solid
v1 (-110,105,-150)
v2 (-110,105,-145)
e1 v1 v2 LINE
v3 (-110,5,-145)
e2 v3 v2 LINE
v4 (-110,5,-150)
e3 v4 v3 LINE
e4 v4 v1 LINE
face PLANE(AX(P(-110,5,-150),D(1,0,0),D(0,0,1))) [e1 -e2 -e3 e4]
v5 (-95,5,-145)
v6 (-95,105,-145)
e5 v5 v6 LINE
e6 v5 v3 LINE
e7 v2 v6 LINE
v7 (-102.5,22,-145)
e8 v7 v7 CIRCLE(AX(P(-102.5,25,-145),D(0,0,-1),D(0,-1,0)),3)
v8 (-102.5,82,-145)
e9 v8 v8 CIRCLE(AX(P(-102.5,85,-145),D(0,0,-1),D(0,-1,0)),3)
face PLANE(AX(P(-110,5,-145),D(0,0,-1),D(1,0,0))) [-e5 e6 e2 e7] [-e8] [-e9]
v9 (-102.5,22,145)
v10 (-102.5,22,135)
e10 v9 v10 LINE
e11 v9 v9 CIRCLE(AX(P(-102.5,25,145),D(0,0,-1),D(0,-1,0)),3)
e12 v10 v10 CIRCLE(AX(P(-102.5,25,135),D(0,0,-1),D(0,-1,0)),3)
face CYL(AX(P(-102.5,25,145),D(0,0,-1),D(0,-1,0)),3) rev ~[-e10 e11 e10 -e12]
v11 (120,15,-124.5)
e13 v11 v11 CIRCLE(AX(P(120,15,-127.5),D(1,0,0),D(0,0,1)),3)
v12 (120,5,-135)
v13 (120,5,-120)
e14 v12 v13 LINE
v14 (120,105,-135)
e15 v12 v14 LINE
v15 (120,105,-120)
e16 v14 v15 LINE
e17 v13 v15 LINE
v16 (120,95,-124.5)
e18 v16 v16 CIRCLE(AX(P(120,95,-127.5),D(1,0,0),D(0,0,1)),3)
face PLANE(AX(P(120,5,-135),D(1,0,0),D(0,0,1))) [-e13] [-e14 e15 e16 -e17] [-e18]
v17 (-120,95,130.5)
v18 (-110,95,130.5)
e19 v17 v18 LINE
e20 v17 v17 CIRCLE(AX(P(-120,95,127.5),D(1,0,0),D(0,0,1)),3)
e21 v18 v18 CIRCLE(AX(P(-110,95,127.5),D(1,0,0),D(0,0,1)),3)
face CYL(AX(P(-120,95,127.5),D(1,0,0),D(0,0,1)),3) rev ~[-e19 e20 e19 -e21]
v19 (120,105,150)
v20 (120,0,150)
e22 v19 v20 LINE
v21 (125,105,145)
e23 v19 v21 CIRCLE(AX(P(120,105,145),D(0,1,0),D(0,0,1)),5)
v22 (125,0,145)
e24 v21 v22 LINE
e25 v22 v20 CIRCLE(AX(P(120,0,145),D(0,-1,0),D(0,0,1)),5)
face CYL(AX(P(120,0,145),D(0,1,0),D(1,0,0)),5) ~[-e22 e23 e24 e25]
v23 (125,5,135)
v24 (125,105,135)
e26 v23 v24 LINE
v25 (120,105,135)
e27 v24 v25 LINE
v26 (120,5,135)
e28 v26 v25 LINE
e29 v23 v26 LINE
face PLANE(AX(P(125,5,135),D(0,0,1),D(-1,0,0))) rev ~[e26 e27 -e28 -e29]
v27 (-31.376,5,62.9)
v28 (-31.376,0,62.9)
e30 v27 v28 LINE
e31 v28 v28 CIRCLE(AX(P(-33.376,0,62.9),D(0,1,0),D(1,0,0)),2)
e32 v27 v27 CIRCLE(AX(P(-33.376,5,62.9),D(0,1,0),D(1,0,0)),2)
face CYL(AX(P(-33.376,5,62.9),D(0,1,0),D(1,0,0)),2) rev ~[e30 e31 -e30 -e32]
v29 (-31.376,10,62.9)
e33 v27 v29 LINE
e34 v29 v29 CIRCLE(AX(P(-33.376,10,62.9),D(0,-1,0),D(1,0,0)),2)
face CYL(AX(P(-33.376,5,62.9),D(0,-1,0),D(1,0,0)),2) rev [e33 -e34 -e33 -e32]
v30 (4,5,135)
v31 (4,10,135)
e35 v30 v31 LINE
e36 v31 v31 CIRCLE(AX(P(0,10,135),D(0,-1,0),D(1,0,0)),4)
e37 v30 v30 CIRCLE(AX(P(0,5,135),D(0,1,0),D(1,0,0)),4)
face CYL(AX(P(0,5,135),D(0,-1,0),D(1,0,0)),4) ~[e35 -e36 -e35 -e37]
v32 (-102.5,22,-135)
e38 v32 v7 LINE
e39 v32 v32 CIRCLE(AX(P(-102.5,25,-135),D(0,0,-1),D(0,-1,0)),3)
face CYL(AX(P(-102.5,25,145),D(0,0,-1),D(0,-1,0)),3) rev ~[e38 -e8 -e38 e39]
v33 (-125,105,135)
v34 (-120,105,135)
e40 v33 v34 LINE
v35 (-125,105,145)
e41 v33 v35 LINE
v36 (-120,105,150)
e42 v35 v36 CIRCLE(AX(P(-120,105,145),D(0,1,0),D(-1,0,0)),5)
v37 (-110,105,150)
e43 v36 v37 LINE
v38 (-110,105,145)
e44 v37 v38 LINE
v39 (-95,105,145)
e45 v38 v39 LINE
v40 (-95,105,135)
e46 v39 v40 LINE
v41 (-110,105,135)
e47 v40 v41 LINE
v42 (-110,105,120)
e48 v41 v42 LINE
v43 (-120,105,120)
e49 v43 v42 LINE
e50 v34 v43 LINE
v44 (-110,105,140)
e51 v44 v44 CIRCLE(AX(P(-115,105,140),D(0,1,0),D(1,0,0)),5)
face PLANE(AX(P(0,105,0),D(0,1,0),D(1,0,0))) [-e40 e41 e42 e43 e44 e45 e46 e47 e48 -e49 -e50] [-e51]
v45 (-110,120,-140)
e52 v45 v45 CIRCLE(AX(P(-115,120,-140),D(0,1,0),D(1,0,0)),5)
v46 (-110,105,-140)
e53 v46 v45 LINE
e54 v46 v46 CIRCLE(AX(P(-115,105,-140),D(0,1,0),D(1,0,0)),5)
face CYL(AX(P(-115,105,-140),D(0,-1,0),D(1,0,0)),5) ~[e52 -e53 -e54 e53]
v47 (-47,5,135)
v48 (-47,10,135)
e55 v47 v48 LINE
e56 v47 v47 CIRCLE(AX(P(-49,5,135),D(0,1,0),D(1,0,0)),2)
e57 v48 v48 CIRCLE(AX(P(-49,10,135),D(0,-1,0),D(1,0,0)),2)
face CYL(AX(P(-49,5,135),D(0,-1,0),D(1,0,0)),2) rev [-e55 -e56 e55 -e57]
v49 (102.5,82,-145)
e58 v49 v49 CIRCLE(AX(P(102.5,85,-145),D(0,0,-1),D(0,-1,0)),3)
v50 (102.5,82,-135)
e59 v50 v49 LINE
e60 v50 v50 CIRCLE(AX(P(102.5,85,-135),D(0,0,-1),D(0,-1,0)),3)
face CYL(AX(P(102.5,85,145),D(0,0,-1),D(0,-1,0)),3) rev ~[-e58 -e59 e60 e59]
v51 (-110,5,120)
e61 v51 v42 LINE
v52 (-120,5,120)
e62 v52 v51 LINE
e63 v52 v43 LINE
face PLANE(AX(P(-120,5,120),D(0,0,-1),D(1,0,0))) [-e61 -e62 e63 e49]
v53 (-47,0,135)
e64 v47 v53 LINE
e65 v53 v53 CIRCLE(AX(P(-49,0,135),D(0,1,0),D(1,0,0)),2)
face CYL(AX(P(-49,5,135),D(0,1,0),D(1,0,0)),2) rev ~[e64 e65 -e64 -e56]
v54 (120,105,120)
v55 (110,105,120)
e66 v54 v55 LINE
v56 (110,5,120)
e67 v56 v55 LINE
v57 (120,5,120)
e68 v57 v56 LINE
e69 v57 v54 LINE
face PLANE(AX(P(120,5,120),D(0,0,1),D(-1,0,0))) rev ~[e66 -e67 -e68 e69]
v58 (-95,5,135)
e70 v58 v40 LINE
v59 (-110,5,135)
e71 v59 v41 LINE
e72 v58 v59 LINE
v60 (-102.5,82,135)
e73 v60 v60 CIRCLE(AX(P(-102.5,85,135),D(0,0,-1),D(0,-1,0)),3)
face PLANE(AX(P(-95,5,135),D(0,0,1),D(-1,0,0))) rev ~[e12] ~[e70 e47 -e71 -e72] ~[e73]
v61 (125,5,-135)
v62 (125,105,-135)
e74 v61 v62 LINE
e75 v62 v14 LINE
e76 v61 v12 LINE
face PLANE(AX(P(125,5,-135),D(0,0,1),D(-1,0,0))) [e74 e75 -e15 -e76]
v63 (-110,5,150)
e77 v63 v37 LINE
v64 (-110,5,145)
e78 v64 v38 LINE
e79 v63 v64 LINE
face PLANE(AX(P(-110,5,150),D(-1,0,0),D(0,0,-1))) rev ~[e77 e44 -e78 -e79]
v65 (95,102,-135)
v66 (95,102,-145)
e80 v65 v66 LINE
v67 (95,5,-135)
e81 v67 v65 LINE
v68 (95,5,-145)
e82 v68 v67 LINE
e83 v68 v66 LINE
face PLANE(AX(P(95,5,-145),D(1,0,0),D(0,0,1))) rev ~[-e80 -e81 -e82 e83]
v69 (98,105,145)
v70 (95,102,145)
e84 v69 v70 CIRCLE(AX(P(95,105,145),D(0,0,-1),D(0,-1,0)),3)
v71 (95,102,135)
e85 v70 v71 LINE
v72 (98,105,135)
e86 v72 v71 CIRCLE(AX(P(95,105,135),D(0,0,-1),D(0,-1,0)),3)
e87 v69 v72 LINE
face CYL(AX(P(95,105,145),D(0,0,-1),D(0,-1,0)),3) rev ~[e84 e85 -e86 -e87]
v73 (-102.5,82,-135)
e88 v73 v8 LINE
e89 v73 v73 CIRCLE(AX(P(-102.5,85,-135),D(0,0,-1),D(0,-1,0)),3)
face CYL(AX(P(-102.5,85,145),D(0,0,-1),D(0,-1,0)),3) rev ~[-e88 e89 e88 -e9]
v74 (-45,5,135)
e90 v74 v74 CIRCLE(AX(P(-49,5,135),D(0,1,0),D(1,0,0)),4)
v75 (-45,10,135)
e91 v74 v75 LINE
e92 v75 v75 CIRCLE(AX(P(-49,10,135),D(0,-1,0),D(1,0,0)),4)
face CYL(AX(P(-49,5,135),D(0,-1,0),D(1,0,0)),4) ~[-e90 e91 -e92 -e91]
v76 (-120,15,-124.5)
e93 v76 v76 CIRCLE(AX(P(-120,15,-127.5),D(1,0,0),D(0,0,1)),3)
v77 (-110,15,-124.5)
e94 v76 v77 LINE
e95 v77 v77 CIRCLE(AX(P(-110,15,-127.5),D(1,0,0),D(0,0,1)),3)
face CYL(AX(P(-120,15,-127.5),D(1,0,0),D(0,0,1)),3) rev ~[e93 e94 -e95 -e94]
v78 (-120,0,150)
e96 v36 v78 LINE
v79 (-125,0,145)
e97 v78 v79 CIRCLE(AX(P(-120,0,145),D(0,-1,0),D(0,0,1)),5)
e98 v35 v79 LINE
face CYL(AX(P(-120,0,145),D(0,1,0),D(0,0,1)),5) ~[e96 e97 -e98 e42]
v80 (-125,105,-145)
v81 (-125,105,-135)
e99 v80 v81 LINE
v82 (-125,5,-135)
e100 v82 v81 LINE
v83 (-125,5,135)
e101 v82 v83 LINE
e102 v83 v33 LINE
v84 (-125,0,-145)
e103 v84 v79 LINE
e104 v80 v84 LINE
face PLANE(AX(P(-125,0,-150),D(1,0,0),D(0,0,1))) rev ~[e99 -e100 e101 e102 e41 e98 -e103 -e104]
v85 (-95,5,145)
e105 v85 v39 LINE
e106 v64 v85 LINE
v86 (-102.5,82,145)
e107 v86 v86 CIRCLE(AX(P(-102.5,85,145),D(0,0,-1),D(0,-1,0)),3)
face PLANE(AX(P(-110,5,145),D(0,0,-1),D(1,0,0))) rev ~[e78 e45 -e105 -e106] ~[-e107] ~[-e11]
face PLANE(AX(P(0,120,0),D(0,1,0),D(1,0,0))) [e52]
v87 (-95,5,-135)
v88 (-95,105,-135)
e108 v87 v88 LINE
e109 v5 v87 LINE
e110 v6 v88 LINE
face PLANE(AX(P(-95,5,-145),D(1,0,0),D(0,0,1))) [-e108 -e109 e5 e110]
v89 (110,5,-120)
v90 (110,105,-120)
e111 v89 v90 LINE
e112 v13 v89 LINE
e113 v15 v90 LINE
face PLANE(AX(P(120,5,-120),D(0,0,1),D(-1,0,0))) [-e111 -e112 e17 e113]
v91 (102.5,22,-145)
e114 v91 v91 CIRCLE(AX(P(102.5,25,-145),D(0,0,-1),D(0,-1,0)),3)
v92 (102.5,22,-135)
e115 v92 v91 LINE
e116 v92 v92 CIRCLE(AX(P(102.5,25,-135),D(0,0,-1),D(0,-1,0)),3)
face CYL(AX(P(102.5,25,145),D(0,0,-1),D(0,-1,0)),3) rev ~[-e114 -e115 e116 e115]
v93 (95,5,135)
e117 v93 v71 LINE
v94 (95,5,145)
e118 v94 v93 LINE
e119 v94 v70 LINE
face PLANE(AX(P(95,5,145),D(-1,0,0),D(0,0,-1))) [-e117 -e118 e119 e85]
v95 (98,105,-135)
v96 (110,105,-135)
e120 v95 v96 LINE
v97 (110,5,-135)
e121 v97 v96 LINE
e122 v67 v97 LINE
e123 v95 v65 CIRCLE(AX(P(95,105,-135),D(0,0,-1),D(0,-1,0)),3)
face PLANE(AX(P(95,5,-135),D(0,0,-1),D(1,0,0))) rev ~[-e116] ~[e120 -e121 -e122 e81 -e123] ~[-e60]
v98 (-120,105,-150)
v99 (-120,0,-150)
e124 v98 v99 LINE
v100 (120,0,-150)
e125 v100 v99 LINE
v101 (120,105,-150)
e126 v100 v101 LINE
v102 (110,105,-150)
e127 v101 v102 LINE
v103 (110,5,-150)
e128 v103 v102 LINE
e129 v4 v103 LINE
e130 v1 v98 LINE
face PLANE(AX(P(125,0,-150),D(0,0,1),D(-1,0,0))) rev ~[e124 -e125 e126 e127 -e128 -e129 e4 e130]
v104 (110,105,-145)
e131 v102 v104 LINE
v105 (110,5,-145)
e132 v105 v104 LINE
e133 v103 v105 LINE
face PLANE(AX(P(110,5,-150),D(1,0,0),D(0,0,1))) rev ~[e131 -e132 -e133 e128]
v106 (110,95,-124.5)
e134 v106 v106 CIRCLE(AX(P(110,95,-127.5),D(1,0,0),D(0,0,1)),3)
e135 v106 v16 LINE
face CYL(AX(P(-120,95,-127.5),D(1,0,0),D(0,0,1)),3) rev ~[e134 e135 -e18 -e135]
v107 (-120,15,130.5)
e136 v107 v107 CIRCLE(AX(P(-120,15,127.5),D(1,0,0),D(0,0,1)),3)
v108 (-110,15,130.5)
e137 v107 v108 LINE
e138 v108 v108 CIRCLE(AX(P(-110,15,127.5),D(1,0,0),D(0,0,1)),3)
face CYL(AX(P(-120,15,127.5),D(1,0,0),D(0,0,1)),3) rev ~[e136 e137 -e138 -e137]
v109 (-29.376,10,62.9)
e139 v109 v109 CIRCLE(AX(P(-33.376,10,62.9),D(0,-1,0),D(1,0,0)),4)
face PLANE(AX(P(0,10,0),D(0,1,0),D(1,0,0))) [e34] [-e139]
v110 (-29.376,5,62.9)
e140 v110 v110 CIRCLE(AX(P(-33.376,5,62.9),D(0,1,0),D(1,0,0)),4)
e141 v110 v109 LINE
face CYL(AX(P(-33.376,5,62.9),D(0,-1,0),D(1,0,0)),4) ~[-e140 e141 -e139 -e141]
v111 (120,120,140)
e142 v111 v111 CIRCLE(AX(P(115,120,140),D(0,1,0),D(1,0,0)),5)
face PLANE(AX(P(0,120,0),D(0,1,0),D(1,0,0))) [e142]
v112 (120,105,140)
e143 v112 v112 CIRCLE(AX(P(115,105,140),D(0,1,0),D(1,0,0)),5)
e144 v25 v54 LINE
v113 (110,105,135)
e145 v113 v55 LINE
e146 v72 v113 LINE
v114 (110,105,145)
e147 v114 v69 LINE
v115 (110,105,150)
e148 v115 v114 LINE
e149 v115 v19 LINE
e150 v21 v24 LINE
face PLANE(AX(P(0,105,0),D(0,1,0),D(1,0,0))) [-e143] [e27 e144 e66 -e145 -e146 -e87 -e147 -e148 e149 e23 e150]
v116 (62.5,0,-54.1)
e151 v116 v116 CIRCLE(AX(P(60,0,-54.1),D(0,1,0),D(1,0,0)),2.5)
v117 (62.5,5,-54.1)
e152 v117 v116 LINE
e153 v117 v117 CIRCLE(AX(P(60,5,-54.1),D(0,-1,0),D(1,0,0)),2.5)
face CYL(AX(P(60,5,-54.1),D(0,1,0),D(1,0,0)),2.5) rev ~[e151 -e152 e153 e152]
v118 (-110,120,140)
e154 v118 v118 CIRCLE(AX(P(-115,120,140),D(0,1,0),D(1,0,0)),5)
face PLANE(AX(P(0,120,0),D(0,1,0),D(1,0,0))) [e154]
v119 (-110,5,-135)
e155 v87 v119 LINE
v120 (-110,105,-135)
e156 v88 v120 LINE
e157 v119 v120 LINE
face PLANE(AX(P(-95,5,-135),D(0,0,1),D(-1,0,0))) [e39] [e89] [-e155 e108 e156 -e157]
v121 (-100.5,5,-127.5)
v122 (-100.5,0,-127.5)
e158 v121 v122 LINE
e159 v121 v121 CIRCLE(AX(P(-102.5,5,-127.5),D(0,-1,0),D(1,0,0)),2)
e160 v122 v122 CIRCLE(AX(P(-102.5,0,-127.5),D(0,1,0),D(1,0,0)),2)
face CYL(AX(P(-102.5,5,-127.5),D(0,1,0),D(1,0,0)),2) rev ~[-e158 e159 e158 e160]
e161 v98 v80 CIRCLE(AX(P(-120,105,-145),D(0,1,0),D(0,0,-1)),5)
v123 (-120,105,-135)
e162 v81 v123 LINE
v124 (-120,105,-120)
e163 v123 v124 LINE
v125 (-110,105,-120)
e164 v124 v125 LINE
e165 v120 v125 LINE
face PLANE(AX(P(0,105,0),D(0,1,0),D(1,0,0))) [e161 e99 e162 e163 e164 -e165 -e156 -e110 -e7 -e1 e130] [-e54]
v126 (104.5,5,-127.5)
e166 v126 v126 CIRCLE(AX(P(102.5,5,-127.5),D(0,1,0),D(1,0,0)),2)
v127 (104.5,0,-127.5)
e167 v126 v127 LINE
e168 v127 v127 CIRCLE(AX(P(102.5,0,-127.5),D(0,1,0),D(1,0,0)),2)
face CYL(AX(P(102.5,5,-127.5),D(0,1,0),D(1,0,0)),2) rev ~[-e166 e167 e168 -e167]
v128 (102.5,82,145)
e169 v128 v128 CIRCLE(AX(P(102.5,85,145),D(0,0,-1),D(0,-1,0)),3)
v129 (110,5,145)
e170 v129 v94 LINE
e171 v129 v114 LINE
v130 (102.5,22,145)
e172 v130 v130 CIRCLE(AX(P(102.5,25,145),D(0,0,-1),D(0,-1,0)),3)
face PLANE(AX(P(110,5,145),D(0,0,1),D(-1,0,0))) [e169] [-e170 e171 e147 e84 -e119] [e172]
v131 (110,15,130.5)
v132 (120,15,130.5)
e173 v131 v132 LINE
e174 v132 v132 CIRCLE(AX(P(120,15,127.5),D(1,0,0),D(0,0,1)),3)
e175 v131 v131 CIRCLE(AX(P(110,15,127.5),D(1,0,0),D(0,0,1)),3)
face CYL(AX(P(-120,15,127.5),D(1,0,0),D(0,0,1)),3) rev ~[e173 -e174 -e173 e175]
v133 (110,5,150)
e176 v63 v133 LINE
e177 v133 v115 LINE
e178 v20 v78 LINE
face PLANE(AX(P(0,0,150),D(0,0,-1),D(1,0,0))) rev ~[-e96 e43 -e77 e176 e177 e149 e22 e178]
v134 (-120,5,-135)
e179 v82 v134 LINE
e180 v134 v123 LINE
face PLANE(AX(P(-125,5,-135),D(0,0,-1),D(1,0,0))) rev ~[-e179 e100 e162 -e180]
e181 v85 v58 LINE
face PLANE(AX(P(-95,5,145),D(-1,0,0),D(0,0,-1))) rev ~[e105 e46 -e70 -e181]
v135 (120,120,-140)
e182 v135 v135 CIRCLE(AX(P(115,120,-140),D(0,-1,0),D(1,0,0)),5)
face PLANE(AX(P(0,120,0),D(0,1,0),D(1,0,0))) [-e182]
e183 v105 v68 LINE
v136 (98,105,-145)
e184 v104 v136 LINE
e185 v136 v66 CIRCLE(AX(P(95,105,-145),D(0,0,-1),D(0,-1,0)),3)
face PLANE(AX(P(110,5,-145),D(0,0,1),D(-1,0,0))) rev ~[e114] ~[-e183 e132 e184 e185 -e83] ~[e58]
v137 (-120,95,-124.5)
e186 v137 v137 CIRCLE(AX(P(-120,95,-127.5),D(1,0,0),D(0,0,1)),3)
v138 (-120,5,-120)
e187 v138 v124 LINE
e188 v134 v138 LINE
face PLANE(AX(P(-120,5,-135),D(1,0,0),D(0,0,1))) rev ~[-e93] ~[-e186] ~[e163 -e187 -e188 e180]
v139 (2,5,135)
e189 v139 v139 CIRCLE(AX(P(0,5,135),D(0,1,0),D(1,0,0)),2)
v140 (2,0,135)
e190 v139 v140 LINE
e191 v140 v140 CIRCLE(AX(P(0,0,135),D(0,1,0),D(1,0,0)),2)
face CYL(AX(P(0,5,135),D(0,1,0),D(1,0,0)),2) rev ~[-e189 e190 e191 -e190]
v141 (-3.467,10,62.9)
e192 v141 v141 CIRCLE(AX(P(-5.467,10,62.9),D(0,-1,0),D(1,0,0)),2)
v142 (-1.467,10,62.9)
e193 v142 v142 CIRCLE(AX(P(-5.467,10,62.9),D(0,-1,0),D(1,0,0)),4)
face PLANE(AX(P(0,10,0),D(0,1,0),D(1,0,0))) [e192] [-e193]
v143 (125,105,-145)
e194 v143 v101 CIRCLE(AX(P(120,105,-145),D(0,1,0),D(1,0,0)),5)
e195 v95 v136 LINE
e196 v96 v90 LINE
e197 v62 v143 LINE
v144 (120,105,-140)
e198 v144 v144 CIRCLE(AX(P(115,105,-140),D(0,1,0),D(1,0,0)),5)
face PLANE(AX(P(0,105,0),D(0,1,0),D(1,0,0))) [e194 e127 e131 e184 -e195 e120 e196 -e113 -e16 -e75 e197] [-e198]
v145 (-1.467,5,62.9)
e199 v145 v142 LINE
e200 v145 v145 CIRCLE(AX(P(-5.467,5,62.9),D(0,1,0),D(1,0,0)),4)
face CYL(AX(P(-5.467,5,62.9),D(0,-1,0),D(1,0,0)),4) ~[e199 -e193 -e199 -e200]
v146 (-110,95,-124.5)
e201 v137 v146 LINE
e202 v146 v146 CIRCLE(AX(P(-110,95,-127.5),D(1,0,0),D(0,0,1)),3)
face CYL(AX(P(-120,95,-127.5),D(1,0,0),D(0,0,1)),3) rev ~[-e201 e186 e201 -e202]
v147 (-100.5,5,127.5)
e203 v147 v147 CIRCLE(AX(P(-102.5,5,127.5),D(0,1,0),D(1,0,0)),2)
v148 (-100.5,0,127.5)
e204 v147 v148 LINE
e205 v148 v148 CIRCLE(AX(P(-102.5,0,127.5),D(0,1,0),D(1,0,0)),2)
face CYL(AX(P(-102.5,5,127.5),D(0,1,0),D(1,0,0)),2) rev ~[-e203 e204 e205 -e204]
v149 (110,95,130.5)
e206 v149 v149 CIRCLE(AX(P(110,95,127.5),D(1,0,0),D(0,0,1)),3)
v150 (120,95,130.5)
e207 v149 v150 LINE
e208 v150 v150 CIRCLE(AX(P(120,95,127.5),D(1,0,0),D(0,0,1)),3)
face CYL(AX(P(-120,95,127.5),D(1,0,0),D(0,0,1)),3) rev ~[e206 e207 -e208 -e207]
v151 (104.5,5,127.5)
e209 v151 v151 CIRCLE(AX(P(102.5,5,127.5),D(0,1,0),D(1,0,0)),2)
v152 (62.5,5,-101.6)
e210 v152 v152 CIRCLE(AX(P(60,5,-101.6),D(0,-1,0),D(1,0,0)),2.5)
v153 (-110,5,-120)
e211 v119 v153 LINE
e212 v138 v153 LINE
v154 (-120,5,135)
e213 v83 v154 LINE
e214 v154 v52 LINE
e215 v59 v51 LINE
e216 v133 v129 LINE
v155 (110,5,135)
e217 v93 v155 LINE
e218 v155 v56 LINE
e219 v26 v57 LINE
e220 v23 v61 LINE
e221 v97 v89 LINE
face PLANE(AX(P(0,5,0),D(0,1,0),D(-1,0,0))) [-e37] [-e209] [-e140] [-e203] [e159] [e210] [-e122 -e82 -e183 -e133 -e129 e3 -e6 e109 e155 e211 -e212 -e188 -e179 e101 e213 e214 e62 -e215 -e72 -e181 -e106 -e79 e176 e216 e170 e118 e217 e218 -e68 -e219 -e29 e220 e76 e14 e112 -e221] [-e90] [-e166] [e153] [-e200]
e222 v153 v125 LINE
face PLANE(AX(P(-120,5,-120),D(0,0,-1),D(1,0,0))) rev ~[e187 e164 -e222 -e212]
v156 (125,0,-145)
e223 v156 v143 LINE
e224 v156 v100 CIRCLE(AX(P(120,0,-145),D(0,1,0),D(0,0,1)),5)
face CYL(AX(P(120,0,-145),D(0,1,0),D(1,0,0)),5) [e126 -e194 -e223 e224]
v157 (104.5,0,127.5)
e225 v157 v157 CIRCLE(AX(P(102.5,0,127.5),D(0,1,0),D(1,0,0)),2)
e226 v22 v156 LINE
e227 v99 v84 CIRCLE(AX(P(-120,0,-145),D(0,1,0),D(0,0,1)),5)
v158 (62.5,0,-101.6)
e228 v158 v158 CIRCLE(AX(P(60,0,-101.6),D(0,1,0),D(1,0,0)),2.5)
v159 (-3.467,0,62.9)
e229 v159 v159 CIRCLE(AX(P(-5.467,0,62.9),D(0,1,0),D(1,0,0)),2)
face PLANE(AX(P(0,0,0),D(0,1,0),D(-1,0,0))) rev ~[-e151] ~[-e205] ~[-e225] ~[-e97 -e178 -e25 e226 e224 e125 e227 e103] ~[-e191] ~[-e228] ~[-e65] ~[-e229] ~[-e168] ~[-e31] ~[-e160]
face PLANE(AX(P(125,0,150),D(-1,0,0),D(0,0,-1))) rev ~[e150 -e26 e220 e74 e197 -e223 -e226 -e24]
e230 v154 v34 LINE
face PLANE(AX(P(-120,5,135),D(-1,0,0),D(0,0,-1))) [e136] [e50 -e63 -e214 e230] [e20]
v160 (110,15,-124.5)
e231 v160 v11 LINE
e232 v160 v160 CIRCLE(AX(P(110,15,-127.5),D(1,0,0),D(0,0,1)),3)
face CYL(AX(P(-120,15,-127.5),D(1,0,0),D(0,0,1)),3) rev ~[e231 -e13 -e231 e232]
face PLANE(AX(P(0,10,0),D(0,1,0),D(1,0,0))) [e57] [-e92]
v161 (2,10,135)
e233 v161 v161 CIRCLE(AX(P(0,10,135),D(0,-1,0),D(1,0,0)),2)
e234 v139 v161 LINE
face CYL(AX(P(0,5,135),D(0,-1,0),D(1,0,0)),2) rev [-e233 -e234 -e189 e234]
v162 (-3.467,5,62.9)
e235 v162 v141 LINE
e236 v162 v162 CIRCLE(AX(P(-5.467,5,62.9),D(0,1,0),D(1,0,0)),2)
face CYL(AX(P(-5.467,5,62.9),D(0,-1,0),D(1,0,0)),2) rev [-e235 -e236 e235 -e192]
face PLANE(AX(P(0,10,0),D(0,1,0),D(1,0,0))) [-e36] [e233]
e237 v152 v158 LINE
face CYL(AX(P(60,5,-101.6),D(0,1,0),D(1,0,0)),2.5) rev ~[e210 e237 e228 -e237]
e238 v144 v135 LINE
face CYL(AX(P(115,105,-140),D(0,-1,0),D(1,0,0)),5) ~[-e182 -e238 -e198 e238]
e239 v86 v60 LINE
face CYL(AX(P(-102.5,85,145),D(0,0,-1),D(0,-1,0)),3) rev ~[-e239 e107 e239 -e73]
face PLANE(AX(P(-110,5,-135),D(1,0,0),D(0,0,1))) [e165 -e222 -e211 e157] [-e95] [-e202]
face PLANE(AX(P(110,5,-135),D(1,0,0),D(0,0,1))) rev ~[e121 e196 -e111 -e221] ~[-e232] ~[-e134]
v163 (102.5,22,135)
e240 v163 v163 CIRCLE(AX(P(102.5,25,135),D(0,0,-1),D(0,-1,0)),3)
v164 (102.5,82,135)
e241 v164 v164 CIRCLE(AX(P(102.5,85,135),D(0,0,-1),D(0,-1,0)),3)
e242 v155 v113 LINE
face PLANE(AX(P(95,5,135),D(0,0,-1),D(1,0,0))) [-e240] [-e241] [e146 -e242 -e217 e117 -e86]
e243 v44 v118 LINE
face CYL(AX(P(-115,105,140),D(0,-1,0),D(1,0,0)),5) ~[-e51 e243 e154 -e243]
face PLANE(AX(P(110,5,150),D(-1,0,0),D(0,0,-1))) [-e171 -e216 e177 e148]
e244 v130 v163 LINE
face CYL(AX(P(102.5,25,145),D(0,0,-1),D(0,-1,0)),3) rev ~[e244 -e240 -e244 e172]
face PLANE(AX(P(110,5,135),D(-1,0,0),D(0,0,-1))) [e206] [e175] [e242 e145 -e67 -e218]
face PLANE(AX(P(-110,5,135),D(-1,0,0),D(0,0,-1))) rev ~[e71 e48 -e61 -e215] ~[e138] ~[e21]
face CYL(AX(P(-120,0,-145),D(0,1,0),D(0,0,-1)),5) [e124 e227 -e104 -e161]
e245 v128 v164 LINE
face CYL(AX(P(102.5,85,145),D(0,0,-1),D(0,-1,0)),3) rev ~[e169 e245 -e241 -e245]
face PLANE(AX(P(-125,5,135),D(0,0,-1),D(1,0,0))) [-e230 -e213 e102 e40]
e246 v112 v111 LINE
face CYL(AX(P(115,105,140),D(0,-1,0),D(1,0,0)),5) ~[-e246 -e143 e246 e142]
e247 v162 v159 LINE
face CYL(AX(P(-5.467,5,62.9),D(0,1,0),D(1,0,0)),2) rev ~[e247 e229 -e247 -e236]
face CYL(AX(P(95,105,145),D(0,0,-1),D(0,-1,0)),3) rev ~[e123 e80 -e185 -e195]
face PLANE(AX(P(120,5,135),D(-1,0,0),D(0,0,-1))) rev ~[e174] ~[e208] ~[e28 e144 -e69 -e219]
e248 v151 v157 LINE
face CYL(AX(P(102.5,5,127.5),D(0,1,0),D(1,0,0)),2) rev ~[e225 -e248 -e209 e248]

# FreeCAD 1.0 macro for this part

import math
import FreeCAD as App
import Part
import Sketcher

V = App.Vector


def edges_at(feature, points):
    """Names of the edges that pass closest to the given points."""
    edges = feature.Shape.Edges
    near = lambda p: min(range(len(edges)), key=lambda i: edges[i].distToShape(Part.Vertex(*p))[0])
    return sorted({f"Edge{near(p) + 1}" for p in points})

doc = App.newDocument("Part")
body = doc.addObject("PartDesign::Body", "Body")

sketch1 = doc.addObject("Sketcher::SketchObject", "Sketch")
body.addObject(sketch1)
sketch1.AttachmentSupport = (doc.XZ_Plane, [""])
sketch1.MapMode = "FlatFace"
sketch1.addGeometry([
    Part.LineSegment(V(125, -150, 0), V(-125, -150, 0)),
    Part.LineSegment(V(-125, -150, 0), V(-125, 150, 0)),
    Part.LineSegment(V(-125, 150, 0), V(125, 150, 0)),
    Part.LineSegment(V(125, 150, 0), V(125, -150, 0)),
], False)
sketch1.addConstraint([
    Sketcher.Constraint("Coincident", 0, 2, 1, 1),
    Sketcher.Constraint("Coincident", 1, 2, 2, 1),
    Sketcher.Constraint("Coincident", 2, 2, 3, 1),
    Sketcher.Constraint("Coincident", 3, 2, 0, 1),
    Sketcher.Constraint("Horizontal", 0),
    Sketcher.Constraint("Vertical", 1),
    Sketcher.Constraint("Horizontal", 2),
    Sketcher.Constraint("Vertical", 3),
    Sketcher.Constraint("Symmetric", 0, 2, 2, 2, -1, 1),
    Sketcher.Constraint("DistanceX", 0, 2, 0, 1, 250.0),
    Sketcher.Constraint("DistanceY", 1, 1, 1, 2, 300.0),
])
pad1 = doc.addObject("PartDesign::Pad", "Pad")
body.addObject(pad1)
pad1.Profile = sketch1
pad1.Length = 5
pad1.Reversed = True
doc.recompute()

fillet = doc.addObject("PartDesign::Fillet", "Fillet")
body.addObject(fillet)
fillet.Base = (pad1, edges_at(pad1, [(125, 2.5, 150)]))
fillet.Radius = 5
doc.recompute()

fillet2 = doc.addObject("PartDesign::Fillet", "Fillet001")
body.addObject(fillet2)
fillet2.Base = (fillet, edges_at(fillet, [(125, 2.5, -150), (-125, 2.5, -150), (-125, 2.5, 150)]))
fillet2.Radius = 5

sketch2 = doc.addObject("Sketcher::SketchObject", "Sketch001")
body.addObject(sketch2)
sketch2.AttachmentSupport = (doc.XZ_Plane, [""])
sketch2.MapMode = "FlatFace"
sketch2.AttachmentOffset = App.Placement(V(0, 0, -5), App.Rotation())
sketch2.addGeometry([
    Part.ArcOfCircle(Part.Circle(V(120, -145, 0), V(0, 0, 1), 5), math.radians(-90), math.radians(0)),
    Part.LineSegment(V(120, -150, 0), V(110, -150, 0)),
    Part.LineSegment(V(110, -150, 0), V(110, -145, 0)),
    Part.LineSegment(V(110, -145, 0), V(95, -145, 0)),
    Part.LineSegment(V(95, -145, 0), V(95, -135, 0)),
    Part.LineSegment(V(95, -135, 0), V(110, -135, 0)),
    Part.LineSegment(V(110, -135, 0), V(110, -120, 0)),
    Part.LineSegment(V(110, -120, 0), V(120, -120, 0)),
    Part.LineSegment(V(120, -120, 0), V(120, -135, 0)),
    Part.LineSegment(V(120, -135, 0), V(125, -135, 0)),
    Part.LineSegment(V(125, -135, 0), V(125, -145, 0)),
    Part.LineSegment(V(-110, -145, 0), V(-110, -150, 0)),
    Part.LineSegment(V(-110, -150, 0), V(-120, -150, 0)),
    Part.ArcOfCircle(Part.Circle(V(-120, -145, 0), V(0, 0, 1), 5), math.radians(180), math.radians(270)),
    Part.LineSegment(V(-125, -145, 0), V(-125, -135, 0)),
    Part.LineSegment(V(-125, -135, 0), V(-120, -135, 0)),
    Part.LineSegment(V(-120, -135, 0), V(-120, -120, 0)),
    Part.LineSegment(V(-120, -120, 0), V(-110, -120, 0)),
    Part.LineSegment(V(-110, -120, 0), V(-110, -135, 0)),
    Part.LineSegment(V(-110, -135, 0), V(-95, -135, 0)),
    Part.LineSegment(V(-95, -135, 0), V(-95, -145, 0)),
    Part.LineSegment(V(-95, -145, 0), V(-110, -145, 0)),
    Part.LineSegment(V(125, 145, 0), V(125, 135, 0)),
    Part.LineSegment(V(125, 135, 0), V(120, 135, 0)),
    Part.LineSegment(V(120, 135, 0), V(120, 120, 0)),
    Part.LineSegment(V(120, 120, 0), V(110, 120, 0)),
    Part.LineSegment(V(110, 120, 0), V(110, 135, 0)),
    Part.LineSegment(V(110, 135, 0), V(95, 135, 0)),
    Part.LineSegment(V(95, 135, 0), V(95, 145, 0)),
    Part.LineSegment(V(95, 145, 0), V(110, 145, 0)),
    Part.LineSegment(V(110, 145, 0), V(110, 150, 0)),
    Part.LineSegment(V(110, 150, 0), V(120, 150, 0)),
    Part.ArcOfCircle(Part.Circle(V(120, 145, 0), V(0, 0, 1), 5), math.radians(0), math.radians(90)),
    Part.LineSegment(V(-120, 135, 0), V(-125, 135, 0)),
    Part.LineSegment(V(-125, 135, 0), V(-125, 145, 0)),
    Part.ArcOfCircle(Part.Circle(V(-120, 145, 0), V(0, 0, 1), 5), math.radians(90), math.radians(180)),
    Part.LineSegment(V(-120, 150, 0), V(-110, 150, 0)),
    Part.LineSegment(V(-110, 150, 0), V(-110, 145, 0)),
    Part.LineSegment(V(-110, 145, 0), V(-95, 145, 0)),
    Part.LineSegment(V(-95, 145, 0), V(-95, 135, 0)),
    Part.LineSegment(V(-95, 135, 0), V(-110, 135, 0)),
    Part.LineSegment(V(-110, 135, 0), V(-110, 120, 0)),
    Part.LineSegment(V(-110, 120, 0), V(-120, 120, 0)),
    Part.LineSegment(V(-120, 120, 0), V(-120, 135, 0)),
], False)
sketch2.addConstraint([
    Sketcher.Constraint("Tangent", 0, 1, 1, 1),
    Sketcher.Constraint("Coincident", 1, 2, 2, 1),
    Sketcher.Constraint("Coincident", 2, 2, 3, 1),
    Sketcher.Constraint("Coincident", 3, 2, 4, 1),
    Sketcher.Constraint("Coincident", 4, 2, 5, 1),
    Sketcher.Constraint("Coincident", 5, 2, 6, 1),
    Sketcher.Constraint("Coincident", 6, 2, 7, 1),
    Sketcher.Constraint("Coincident", 7, 2, 8, 1),
    Sketcher.Constraint("Coincident", 8, 2, 9, 1),
    Sketcher.Constraint("Coincident", 9, 2, 10, 1),
    Sketcher.Constraint("Tangent", 10, 2, 0, 2),
    Sketcher.Constraint("Coincident", 11, 2, 12, 1),
    Sketcher.Constraint("Tangent", 12, 2, 13, 2),
    Sketcher.Constraint("Tangent", 13, 1, 14, 1),
    Sketcher.Constraint("Coincident", 14, 2, 15, 1),
    Sketcher.Constraint("Coincident", 15, 2, 16, 1),
    Sketcher.Constraint("Coincident", 16, 2, 17, 1),
    Sketcher.Constraint("Coincident", 17, 2, 18, 1),
    Sketcher.Constraint("Coincident", 18, 2, 19, 1),
    Sketcher.Constraint("Coincident", 19, 2, 20, 1),
    Sketcher.Constraint("Coincident", 20, 2, 21, 1),
    Sketcher.Constraint("Coincident", 21, 2, 11, 1),
    Sketcher.Constraint("Coincident", 22, 2, 23, 1),
    Sketcher.Constraint("Coincident", 23, 2, 24, 1),
    Sketcher.Constraint("Coincident", 24, 2, 25, 1),
    Sketcher.Constraint("Coincident", 25, 2, 26, 1),
    Sketcher.Constraint("Coincident", 26, 2, 27, 1),
    Sketcher.Constraint("Coincident", 27, 2, 28, 1),
    Sketcher.Constraint("Coincident", 28, 2, 29, 1),
    Sketcher.Constraint("Coincident", 29, 2, 30, 1),
    Sketcher.Constraint("Coincident", 30, 2, 31, 1),
    Sketcher.Constraint("Tangent", 31, 2, 32, 2),
    Sketcher.Constraint("Tangent", 32, 1, 22, 1),
    Sketcher.Constraint("Coincident", 33, 2, 34, 1),
    Sketcher.Constraint("Tangent", 34, 2, 35, 2),
    Sketcher.Constraint("Tangent", 35, 1, 36, 1),
    Sketcher.Constraint("Coincident", 36, 2, 37, 1),
    Sketcher.Constraint("Coincident", 37, 2, 38, 1),
    Sketcher.Constraint("Coincident", 38, 2, 39, 1),
    Sketcher.Constraint("Coincident", 39, 2, 40, 1),
    Sketcher.Constraint("Coincident", 40, 2, 41, 1),
    Sketcher.Constraint("Coincident", 41, 2, 42, 1),
    Sketcher.Constraint("Coincident", 42, 2, 43, 1),
    Sketcher.Constraint("Coincident", 43, 2, 33, 1),
    Sketcher.Constraint("Horizontal", 1),
    Sketcher.Constraint("Vertical", 2),
    Sketcher.Constraint("Horizontal", 3),
    Sketcher.Constraint("Vertical", 4),
    Sketcher.Constraint("Horizontal", 5),
    Sketcher.Constraint("Vertical", 6),
    Sketcher.Constraint("Horizontal", 7),
    Sketcher.Constraint("Vertical", 8),
    Sketcher.Constraint("Horizontal", 9),
    Sketcher.Constraint("Vertical", 10),
    Sketcher.Constraint("Vertical", 11),
    Sketcher.Constraint("Horizontal", 12),
    Sketcher.Constraint("Vertical", 14),
    Sketcher.Constraint("Horizontal", 15),
    Sketcher.Constraint("Vertical", 16),
    Sketcher.Constraint("Horizontal", 17),
    Sketcher.Constraint("Vertical", 18),
    Sketcher.Constraint("Horizontal", 19),
    Sketcher.Constraint("Vertical", 20),
    Sketcher.Constraint("Horizontal", 21),
    Sketcher.Constraint("Vertical", 22),
    Sketcher.Constraint("Horizontal", 23),
    Sketcher.Constraint("Vertical", 24),
    Sketcher.Constraint("Horizontal", 25),
    Sketcher.Constraint("Vertical", 26),
    Sketcher.Constraint("Horizontal", 27),
    Sketcher.Constraint("Vertical", 28),
    Sketcher.Constraint("Horizontal", 29),
    Sketcher.Constraint("Vertical", 30),
    Sketcher.Constraint("Horizontal", 31),
    Sketcher.Constraint("Horizontal", 33),
    Sketcher.Constraint("Vertical", 34),
    Sketcher.Constraint("Horizontal", 36),
    Sketcher.Constraint("Vertical", 37),
    Sketcher.Constraint("Horizontal", 38),
    Sketcher.Constraint("Vertical", 39),
    Sketcher.Constraint("Horizontal", 40),
    Sketcher.Constraint("Vertical", 41),
    Sketcher.Constraint("Horizontal", 42),
    Sketcher.Constraint("Vertical", 43),
    Sketcher.Constraint("Equal", 0, 13),
    Sketcher.Constraint("Equal", 13, 32),
    Sketcher.Constraint("Equal", 32, 35),
    Sketcher.Constraint("Symmetric", 13, 3, 32, 3, -1, 1),
    Sketcher.Constraint("Symmetric", 0, 3, 35, 3, -1, 1),
    Sketcher.Constraint("Symmetric", 15, 2, 23, 2, -1, 1),
    Sketcher.Constraint("Symmetric", 17, 2, 25, 2, -1, 1),
    Sketcher.Constraint("Symmetric", 19, 2, 27, 2, -1, 1),
    Sketcher.Constraint("Symmetric", 21, 2, 29, 2, -1, 1),
    Sketcher.Constraint("Symmetric", 2, 2, 37, 2, -1, 1),
    Sketcher.Constraint("Symmetric", 4, 2, 39, 2, -1, 1),
    Sketcher.Constraint("Symmetric", 6, 2, 41, 2, -1, 1),
    Sketcher.Constraint("Symmetric", 8, 2, 43, 2, -1, 1),
    Sketcher.Constraint("Symmetric", 0, 3, 13, 3, -2),
    Sketcher.Constraint("Symmetric", 8, 2, 15, 2, -2),
    Sketcher.Constraint("Symmetric", 6, 2, 17, 2, -2),
    Sketcher.Constraint("Symmetric", 4, 2, 19, 2, -2),
    Sketcher.Constraint("Symmetric", 2, 2, 21, 2, -2),
    Sketcher.Constraint("Horizontal", 13, 3, 2, 2),
    Sketcher.Constraint("Horizontal", 5, 2, 8, 2),
    Sketcher.Constraint("Vertical", 2, 2, 5, 2),
    Sketcher.Constraint("Vertical", 0, 1, 7, 2),
    Sketcher.Constraint("Equal", 42, 4),
    Sketcher.Constraint("Equal", 40, 6),
    Sketcher.Constraint("Radius", 0, 5.0),
    Sketcher.Constraint("DistanceX", 1, 2, 1, 1, 10.0),
    Sketcher.Constraint("DistanceX", 3, 2, 3, 1, 15.0),
    Sketcher.Constraint("DistanceX", -1, 1, 0, 3, 120.0),
    Sketcher.Constraint("DistanceY", 0, 3, -1, 1, 145.0),
])
pad2 = doc.addObject("PartDesign::Pad", "Pad001")
body.addObject(pad2)
pad2.Profile = sketch2
pad2.Length = 100
pad2.Reversed = True

sketch3 = doc.addObject("Sketcher::SketchObject", "Sketch002")
body.addObject(sketch3)
sketch3.AttachmentSupport = (doc.XZ_Plane, [""])
sketch3.MapMode = "FlatFace"
sketch3.AttachmentOffset = App.Placement(V(0, 0, -105), App.Rotation())
sketch3.addGeometry([
    Part.Circle(V(115, -140, 0), V(0, 0, 1), 5),
    Part.Circle(V(115, 140, 0), V(0, 0, 1), 5),
    Part.Circle(V(-115, -140, 0), V(0, 0, 1), 5),
    Part.Circle(V(-115, 140, 0), V(0, 0, 1), 5),
], False)
sketch3.addConstraint([
    Sketcher.Constraint("Equal", 0, 1),
    Sketcher.Constraint("Equal", 1, 2),
    Sketcher.Constraint("Equal", 2, 3),
    Sketcher.Constraint("Symmetric", 1, 3, 2, 3, -1, 1),
    Sketcher.Constraint("Symmetric", 0, 3, 3, 3, -1, 1),
    Sketcher.Constraint("Symmetric", 0, 3, 2, 3, -2),
    Sketcher.Constraint("Diameter", 0, 10.0),
    Sketcher.Constraint("DistanceX", -1, 1, 0, 3, 115.0),
    Sketcher.Constraint("DistanceY", 0, 3, -1, 1, 140.0),
])
pad3 = doc.addObject("PartDesign::Pad", "Pad002")
body.addObject(pad3)
pad3.Profile = sketch3
pad3.Length = 15
pad3.Reversed = True

sketch4 = doc.addObject("Sketcher::SketchObject", "Sketch003")
body.addObject(sketch4)
sketch4.AttachmentSupport = (doc.YZ_Plane, [""])
sketch4.MapMode = "FlatFace"
sketch4.AttachmentOffset = App.Placement(V(0, 0, -120), App.Rotation())
sketch4.addGeometry([
    Part.Circle(V(95, -127.5, 0), V(0, 0, 1), 3),
    Part.Circle(V(15, -127.5, 0), V(0, 0, 1), 3),
], False)
sketch4.addConstraint([
    Sketcher.Constraint("Equal", 0, 1),
    Sketcher.Constraint("Horizontal", 0, 3, 1, 3),
    Sketcher.Constraint("Diameter", 0, 6.0),
    Sketcher.Constraint("DistanceX", -1, 1, 0, 3, 95.0),
    Sketcher.Constraint("DistanceX", -1, 1, 1, 3, 15.0),
    Sketcher.Constraint("DistanceY", 0, 3, -1, 1, 127.5),
])
doc.recompute()
hole = doc.addObject("PartDesign::Hole", "Hole")
body.addObject(hole)
hole.Profile = sketch4
hole.ThreadType = "None"
hole.Diameter = 6
hole.DepthType = "ThroughAll"
hole.Reversed = True

sketch5 = doc.addObject("Sketcher::SketchObject", "Sketch004")
body.addObject(sketch5)
sketch5.AttachmentSupport = (doc.YZ_Plane, [""])
sketch5.MapMode = "FlatFace"
sketch5.AttachmentOffset = App.Placement(V(0, 0, -120), App.Rotation())
sketch5.addGeometry([
    Part.Circle(V(95, 127.5, 0), V(0, 0, 1), 3),
    Part.Circle(V(15, 127.5, 0), V(0, 0, 1), 3),
], False)
sketch5.addConstraint([
    Sketcher.Constraint("Equal", 0, 1),
    Sketcher.Constraint("Horizontal", 0, 3, 1, 3),
    Sketcher.Constraint("Diameter", 0, 6.0),
    Sketcher.Constraint("DistanceX", -1, 1, 0, 3, 95.0),
    Sketcher.Constraint("DistanceX", -1, 1, 1, 3, 15.0),
    Sketcher.Constraint("DistanceY", -1, 1, 0, 3, 127.5),
])
doc.recompute()
hole2 = doc.addObject("PartDesign::Hole", "Hole001")
body.addObject(hole2)
hole2.Profile = sketch5
hole2.ThreadType = "None"
hole2.Diameter = 6
hole2.DepthType = "ThroughAll"
hole2.Reversed = True

sketch6 = doc.addObject("Sketcher::SketchObject", "Sketch005")
body.addObject(sketch6)
sketch6.AttachmentSupport = (doc.XY_Plane, [""])
sketch6.MapMode = "FlatFace"
sketch6.AttachmentOffset = App.Placement(V(0, 0, 145), App.Rotation())
sketch6.addGeometry([
    Part.Circle(V(-102.5, 85, 0), V(0, 0, 1), 3),
    Part.Circle(V(-102.5, 25, 0), V(0, 0, 1), 3),
], False)
sketch6.addConstraint([
    Sketcher.Constraint("Equal", 0, 1),
    Sketcher.Constraint("Vertical", 0, 3, 1, 3),
    Sketcher.Constraint("Diameter", 0, 6.0),
    Sketcher.Constraint("DistanceY", -1, 1, 0, 3, 85.0),
    Sketcher.Constraint("DistanceY", -1, 1, 1, 3, 25.0),
    Sketcher.Constraint("DistanceX", 0, 3, -1, 1, 102.5),
])
doc.recompute()
hole3 = doc.addObject("PartDesign::Hole", "Hole002")
body.addObject(hole3)
hole3.Profile = sketch6
hole3.ThreadType = "None"
hole3.Diameter = 6
hole3.DepthType = "ThroughAll"

sketch7 = doc.addObject("Sketcher::SketchObject", "Sketch006")
body.addObject(sketch7)
sketch7.AttachmentSupport = (doc.XY_Plane, [""])
sketch7.MapMode = "FlatFace"
sketch7.AttachmentOffset = App.Placement(V(0, 0, 145), App.Rotation())
sketch7.addGeometry([
    Part.Circle(V(95, 105, 0), V(0, 0, 1), 3),
    Part.Circle(V(102.5, 85, 0), V(0, 0, 1), 3),
    Part.Circle(V(102.5, 25, 0), V(0, 0, 1), 3),
], False)
sketch7.addConstraint([
    Sketcher.Constraint("Equal", 0, 1),
    Sketcher.Constraint("Equal", 1, 2),
    Sketcher.Constraint("Vertical", 1, 3, 2, 3),
    Sketcher.Constraint("Diameter", 0, 6.0),
    Sketcher.Constraint("DistanceX", -1, 1, 0, 3, 95.0),
    Sketcher.Constraint("DistanceY", -1, 1, 0, 3, 105.0),
    Sketcher.Constraint("DistanceY", -1, 1, 1, 3, 85.0),
    Sketcher.Constraint("DistanceY", -1, 1, 2, 3, 25.0),
    Sketcher.Constraint("DistanceX", -1, 1, 1, 3, 102.5),
])
doc.recompute()
hole4 = doc.addObject("PartDesign::Hole", "Hole003")
body.addObject(hole4)
hole4.Profile = sketch7
hole4.ThreadType = "None"
hole4.Diameter = 6
hole4.DepthType = "ThroughAll"

sketch8 = doc.addObject("Sketcher::SketchObject", "Sketch007")
body.addObject(sketch8)
sketch8.AttachmentSupport = (doc.XZ_Plane, [""])
sketch8.MapMode = "FlatFace"
sketch8.AttachmentOffset = App.Placement(V(0, 0, -5), App.Rotation())
sketch8.addGeometry([
    Part.Circle(V(0, 135, 0), V(0, 0, 1), 4),
    Part.Circle(V(0, 135, 0), V(0, 0, 1), 2),
    Part.Circle(V(-49, 135, 0), V(0, 0, 1), 4),
    Part.Circle(V(-49, 135, 0), V(0, 0, 1), 2),
    Part.Circle(V(-5.5, 62.9, 0), V(0, 0, 1), 4),
    Part.Circle(V(-5.5, 62.9, 0), V(0, 0, 1), 2),
    Part.Circle(V(-33.4, 62.9, 0), V(0, 0, 1), 4),
    Part.Circle(V(-33.4, 62.9, 0), V(0, 0, 1), 2),
], False)
sketch8.addConstraint([
    Sketcher.Constraint("Coincident", 1, 3, 0, 3),
    Sketcher.Constraint("Coincident", 3, 3, 2, 3),
    Sketcher.Constraint("Coincident", 5, 3, 4, 3),
    Sketcher.Constraint("Coincident", 7, 3, 6, 3),
    Sketcher.Constraint("Equal", 0, 2),
    Sketcher.Constraint("Equal", 1, 3),
    Sketcher.Constraint("Equal", 2, 4),
    Sketcher.Constraint("Equal", 3, 5),
    Sketcher.Constraint("Equal", 4, 6),
    Sketcher.Constraint("Equal", 5, 7),
    Sketcher.Constraint("PointOnObject", 0, 3, -2),
    Sketcher.Constraint("Horizontal", 1, 3, 2, 3),
    Sketcher.Constraint("Horizontal", 5, 3, 6, 3),
    Sketcher.Constraint("Diameter", 0, 8.0),
    Sketcher.Constraint("Diameter", 1, 4.0),
    Sketcher.Constraint("DistanceX", 2, 3, -1, 1, 49.0),
    Sketcher.Constraint("DistanceY", 4, 3, 0, 3, 72.1),
    Sketcher.Constraint("DistanceY", -1, 1, 0, 3, 135.0),
    Sketcher.Constraint("DistanceX", 6, 3, 4, 3, 27.909),
    Sketcher.Constraint("DistanceX", 2, 3, 6, 3, 15.624),
])
pad4 = doc.addObject("PartDesign::Pad", "Pad003")
body.addObject(pad4)
pad4.Profile = sketch8
pad4.Length = 5
pad4.Reversed = True

sketch9 = doc.addObject("Sketcher::SketchObject", "Sketch008")
body.addObject(sketch9)
sketch9.AttachmentSupport = (doc.XZ_Plane, [""])
sketch9.MapMode = "FlatFace"
sketch9.AttachmentOffset = App.Placement(V(0, 0, -5), App.Rotation())
sketch9.addGeometry([
    Part.Circle(V(-5.5, 62.9, 0), V(0, 0, 1), 2),
    Part.Circle(V(0, 135, 0), V(0, 0, 1), 2),
    Part.Circle(V(-49, 135, 0), V(0, 0, 1), 2),
    Part.Circle(V(-33.4, 62.9, 0), V(0, 0, 1), 2),
], False)
sketch9.addConstraint([
    Sketcher.Constraint("Equal", 0, 1),
    Sketcher.Constraint("Equal", 1, 2),
    Sketcher.Constraint("Equal", 2, 3),
    Sketcher.Constraint("PointOnObject", 1, 3, -2),
    Sketcher.Constraint("Horizontal", 1, 3, 2, 3),
    Sketcher.Constraint("Horizontal", 0, 3, 3, 3),
    Sketcher.Constraint("Diameter", 0, 4.0),
    Sketcher.Constraint("DistanceY", -1, 1, 1, 3, 135.0),
    Sketcher.Constraint("DistanceX", 2, 3, -1, 1, 49.0),
    Sketcher.Constraint("DistanceY", -1, 1, 0, 3, 62.9),
    Sketcher.Constraint("DistanceX", 0, 3, -1, 1, 5.467),
    Sketcher.Constraint("DistanceX", 3, 3, -1, 1, 33.376),
])
pocket1 = doc.addObject("PartDesign::Pocket", "Pocket")
body.addObject(pocket1)
pocket1.Profile = sketch9
pocket1.Length = 10
pocket1.Reversed = True

sketch10 = doc.addObject("Sketcher::SketchObject", "Sketch009")
body.addObject(sketch10)
sketch10.AttachmentSupport = (doc.XZ_Plane, [""])
sketch10.MapMode = "FlatFace"
sketch10.AttachmentOffset = App.Placement(V(0, 0, -5), App.Rotation())
sketch10.addGeometry([
    Part.Circle(V(60, -101.6, 0), V(0, 0, 1), 2.5),
    Part.Circle(V(60, -54.1, 0), V(0, 0, 1), 2.5),
], False)
sketch10.addConstraint([
    Sketcher.Constraint("Equal", 0, 1),
    Sketcher.Constraint("Vertical", 0, 3, 1, 3),
    Sketcher.Constraint("Diameter", 0, 5.0),
    Sketcher.Constraint("DistanceX", -1, 1, 0, 3, 60.0),
    Sketcher.Constraint("DistanceY", 0, 3, 1, 3, 47.5),
    Sketcher.Constraint("DistanceY", 0, 3, -1, 1, 101.6),
])
pocket2 = doc.addObject("PartDesign::Pocket", "Pocket001")
body.addObject(pocket2)
pocket2.Profile = sketch10
pocket2.Length = 10
pocket2.Reversed = True

sketch11 = doc.addObject("Sketcher::SketchObject", "Sketch010")
body.addObject(sketch11)
sketch11.AttachmentSupport = (doc.XZ_Plane, [""])
sketch11.MapMode = "FlatFace"
sketch11.AttachmentOffset = App.Placement(V(0, 0, -5), App.Rotation())
sketch11.addGeometry([
    Part.Circle(V(-102.5, -127.5, 0), V(0, 0, 1), 2),
    Part.Circle(V(-102.5, 127.5, 0), V(0, 0, 1), 2),
    Part.Circle(V(102.5, -127.5, 0), V(0, 0, 1), 2),
    Part.Circle(V(102.5, 127.5, 0), V(0, 0, 1), 2),
], False)
sketch11.addConstraint([
    Sketcher.Constraint("Equal", 0, 1),
    Sketcher.Constraint("Equal", 1, 2),
    Sketcher.Constraint("Equal", 2, 3),
    Sketcher.Constraint("Symmetric", 1, 3, 2, 3, -1, 1),
    Sketcher.Constraint("Symmetric", 0, 3, 3, 3, -1, 1),
    Sketcher.Constraint("Symmetric", 0, 3, 2, 3, -2),
    Sketcher.Constraint("Diameter", 0, 4.0),
    Sketcher.Constraint("DistanceY", 0, 3, 1, 3, 255.0),
    Sketcher.Constraint("DistanceX", 0, 3, 2, 3, 205.0),
])
pocket3 = doc.addObject("PartDesign::Pocket", "Pocket002")
body.addObject(pocket3)
pocket3.Profile = sketch11
pocket3.Length = 15
pocket3.Reversed = True

doc.recompute()
